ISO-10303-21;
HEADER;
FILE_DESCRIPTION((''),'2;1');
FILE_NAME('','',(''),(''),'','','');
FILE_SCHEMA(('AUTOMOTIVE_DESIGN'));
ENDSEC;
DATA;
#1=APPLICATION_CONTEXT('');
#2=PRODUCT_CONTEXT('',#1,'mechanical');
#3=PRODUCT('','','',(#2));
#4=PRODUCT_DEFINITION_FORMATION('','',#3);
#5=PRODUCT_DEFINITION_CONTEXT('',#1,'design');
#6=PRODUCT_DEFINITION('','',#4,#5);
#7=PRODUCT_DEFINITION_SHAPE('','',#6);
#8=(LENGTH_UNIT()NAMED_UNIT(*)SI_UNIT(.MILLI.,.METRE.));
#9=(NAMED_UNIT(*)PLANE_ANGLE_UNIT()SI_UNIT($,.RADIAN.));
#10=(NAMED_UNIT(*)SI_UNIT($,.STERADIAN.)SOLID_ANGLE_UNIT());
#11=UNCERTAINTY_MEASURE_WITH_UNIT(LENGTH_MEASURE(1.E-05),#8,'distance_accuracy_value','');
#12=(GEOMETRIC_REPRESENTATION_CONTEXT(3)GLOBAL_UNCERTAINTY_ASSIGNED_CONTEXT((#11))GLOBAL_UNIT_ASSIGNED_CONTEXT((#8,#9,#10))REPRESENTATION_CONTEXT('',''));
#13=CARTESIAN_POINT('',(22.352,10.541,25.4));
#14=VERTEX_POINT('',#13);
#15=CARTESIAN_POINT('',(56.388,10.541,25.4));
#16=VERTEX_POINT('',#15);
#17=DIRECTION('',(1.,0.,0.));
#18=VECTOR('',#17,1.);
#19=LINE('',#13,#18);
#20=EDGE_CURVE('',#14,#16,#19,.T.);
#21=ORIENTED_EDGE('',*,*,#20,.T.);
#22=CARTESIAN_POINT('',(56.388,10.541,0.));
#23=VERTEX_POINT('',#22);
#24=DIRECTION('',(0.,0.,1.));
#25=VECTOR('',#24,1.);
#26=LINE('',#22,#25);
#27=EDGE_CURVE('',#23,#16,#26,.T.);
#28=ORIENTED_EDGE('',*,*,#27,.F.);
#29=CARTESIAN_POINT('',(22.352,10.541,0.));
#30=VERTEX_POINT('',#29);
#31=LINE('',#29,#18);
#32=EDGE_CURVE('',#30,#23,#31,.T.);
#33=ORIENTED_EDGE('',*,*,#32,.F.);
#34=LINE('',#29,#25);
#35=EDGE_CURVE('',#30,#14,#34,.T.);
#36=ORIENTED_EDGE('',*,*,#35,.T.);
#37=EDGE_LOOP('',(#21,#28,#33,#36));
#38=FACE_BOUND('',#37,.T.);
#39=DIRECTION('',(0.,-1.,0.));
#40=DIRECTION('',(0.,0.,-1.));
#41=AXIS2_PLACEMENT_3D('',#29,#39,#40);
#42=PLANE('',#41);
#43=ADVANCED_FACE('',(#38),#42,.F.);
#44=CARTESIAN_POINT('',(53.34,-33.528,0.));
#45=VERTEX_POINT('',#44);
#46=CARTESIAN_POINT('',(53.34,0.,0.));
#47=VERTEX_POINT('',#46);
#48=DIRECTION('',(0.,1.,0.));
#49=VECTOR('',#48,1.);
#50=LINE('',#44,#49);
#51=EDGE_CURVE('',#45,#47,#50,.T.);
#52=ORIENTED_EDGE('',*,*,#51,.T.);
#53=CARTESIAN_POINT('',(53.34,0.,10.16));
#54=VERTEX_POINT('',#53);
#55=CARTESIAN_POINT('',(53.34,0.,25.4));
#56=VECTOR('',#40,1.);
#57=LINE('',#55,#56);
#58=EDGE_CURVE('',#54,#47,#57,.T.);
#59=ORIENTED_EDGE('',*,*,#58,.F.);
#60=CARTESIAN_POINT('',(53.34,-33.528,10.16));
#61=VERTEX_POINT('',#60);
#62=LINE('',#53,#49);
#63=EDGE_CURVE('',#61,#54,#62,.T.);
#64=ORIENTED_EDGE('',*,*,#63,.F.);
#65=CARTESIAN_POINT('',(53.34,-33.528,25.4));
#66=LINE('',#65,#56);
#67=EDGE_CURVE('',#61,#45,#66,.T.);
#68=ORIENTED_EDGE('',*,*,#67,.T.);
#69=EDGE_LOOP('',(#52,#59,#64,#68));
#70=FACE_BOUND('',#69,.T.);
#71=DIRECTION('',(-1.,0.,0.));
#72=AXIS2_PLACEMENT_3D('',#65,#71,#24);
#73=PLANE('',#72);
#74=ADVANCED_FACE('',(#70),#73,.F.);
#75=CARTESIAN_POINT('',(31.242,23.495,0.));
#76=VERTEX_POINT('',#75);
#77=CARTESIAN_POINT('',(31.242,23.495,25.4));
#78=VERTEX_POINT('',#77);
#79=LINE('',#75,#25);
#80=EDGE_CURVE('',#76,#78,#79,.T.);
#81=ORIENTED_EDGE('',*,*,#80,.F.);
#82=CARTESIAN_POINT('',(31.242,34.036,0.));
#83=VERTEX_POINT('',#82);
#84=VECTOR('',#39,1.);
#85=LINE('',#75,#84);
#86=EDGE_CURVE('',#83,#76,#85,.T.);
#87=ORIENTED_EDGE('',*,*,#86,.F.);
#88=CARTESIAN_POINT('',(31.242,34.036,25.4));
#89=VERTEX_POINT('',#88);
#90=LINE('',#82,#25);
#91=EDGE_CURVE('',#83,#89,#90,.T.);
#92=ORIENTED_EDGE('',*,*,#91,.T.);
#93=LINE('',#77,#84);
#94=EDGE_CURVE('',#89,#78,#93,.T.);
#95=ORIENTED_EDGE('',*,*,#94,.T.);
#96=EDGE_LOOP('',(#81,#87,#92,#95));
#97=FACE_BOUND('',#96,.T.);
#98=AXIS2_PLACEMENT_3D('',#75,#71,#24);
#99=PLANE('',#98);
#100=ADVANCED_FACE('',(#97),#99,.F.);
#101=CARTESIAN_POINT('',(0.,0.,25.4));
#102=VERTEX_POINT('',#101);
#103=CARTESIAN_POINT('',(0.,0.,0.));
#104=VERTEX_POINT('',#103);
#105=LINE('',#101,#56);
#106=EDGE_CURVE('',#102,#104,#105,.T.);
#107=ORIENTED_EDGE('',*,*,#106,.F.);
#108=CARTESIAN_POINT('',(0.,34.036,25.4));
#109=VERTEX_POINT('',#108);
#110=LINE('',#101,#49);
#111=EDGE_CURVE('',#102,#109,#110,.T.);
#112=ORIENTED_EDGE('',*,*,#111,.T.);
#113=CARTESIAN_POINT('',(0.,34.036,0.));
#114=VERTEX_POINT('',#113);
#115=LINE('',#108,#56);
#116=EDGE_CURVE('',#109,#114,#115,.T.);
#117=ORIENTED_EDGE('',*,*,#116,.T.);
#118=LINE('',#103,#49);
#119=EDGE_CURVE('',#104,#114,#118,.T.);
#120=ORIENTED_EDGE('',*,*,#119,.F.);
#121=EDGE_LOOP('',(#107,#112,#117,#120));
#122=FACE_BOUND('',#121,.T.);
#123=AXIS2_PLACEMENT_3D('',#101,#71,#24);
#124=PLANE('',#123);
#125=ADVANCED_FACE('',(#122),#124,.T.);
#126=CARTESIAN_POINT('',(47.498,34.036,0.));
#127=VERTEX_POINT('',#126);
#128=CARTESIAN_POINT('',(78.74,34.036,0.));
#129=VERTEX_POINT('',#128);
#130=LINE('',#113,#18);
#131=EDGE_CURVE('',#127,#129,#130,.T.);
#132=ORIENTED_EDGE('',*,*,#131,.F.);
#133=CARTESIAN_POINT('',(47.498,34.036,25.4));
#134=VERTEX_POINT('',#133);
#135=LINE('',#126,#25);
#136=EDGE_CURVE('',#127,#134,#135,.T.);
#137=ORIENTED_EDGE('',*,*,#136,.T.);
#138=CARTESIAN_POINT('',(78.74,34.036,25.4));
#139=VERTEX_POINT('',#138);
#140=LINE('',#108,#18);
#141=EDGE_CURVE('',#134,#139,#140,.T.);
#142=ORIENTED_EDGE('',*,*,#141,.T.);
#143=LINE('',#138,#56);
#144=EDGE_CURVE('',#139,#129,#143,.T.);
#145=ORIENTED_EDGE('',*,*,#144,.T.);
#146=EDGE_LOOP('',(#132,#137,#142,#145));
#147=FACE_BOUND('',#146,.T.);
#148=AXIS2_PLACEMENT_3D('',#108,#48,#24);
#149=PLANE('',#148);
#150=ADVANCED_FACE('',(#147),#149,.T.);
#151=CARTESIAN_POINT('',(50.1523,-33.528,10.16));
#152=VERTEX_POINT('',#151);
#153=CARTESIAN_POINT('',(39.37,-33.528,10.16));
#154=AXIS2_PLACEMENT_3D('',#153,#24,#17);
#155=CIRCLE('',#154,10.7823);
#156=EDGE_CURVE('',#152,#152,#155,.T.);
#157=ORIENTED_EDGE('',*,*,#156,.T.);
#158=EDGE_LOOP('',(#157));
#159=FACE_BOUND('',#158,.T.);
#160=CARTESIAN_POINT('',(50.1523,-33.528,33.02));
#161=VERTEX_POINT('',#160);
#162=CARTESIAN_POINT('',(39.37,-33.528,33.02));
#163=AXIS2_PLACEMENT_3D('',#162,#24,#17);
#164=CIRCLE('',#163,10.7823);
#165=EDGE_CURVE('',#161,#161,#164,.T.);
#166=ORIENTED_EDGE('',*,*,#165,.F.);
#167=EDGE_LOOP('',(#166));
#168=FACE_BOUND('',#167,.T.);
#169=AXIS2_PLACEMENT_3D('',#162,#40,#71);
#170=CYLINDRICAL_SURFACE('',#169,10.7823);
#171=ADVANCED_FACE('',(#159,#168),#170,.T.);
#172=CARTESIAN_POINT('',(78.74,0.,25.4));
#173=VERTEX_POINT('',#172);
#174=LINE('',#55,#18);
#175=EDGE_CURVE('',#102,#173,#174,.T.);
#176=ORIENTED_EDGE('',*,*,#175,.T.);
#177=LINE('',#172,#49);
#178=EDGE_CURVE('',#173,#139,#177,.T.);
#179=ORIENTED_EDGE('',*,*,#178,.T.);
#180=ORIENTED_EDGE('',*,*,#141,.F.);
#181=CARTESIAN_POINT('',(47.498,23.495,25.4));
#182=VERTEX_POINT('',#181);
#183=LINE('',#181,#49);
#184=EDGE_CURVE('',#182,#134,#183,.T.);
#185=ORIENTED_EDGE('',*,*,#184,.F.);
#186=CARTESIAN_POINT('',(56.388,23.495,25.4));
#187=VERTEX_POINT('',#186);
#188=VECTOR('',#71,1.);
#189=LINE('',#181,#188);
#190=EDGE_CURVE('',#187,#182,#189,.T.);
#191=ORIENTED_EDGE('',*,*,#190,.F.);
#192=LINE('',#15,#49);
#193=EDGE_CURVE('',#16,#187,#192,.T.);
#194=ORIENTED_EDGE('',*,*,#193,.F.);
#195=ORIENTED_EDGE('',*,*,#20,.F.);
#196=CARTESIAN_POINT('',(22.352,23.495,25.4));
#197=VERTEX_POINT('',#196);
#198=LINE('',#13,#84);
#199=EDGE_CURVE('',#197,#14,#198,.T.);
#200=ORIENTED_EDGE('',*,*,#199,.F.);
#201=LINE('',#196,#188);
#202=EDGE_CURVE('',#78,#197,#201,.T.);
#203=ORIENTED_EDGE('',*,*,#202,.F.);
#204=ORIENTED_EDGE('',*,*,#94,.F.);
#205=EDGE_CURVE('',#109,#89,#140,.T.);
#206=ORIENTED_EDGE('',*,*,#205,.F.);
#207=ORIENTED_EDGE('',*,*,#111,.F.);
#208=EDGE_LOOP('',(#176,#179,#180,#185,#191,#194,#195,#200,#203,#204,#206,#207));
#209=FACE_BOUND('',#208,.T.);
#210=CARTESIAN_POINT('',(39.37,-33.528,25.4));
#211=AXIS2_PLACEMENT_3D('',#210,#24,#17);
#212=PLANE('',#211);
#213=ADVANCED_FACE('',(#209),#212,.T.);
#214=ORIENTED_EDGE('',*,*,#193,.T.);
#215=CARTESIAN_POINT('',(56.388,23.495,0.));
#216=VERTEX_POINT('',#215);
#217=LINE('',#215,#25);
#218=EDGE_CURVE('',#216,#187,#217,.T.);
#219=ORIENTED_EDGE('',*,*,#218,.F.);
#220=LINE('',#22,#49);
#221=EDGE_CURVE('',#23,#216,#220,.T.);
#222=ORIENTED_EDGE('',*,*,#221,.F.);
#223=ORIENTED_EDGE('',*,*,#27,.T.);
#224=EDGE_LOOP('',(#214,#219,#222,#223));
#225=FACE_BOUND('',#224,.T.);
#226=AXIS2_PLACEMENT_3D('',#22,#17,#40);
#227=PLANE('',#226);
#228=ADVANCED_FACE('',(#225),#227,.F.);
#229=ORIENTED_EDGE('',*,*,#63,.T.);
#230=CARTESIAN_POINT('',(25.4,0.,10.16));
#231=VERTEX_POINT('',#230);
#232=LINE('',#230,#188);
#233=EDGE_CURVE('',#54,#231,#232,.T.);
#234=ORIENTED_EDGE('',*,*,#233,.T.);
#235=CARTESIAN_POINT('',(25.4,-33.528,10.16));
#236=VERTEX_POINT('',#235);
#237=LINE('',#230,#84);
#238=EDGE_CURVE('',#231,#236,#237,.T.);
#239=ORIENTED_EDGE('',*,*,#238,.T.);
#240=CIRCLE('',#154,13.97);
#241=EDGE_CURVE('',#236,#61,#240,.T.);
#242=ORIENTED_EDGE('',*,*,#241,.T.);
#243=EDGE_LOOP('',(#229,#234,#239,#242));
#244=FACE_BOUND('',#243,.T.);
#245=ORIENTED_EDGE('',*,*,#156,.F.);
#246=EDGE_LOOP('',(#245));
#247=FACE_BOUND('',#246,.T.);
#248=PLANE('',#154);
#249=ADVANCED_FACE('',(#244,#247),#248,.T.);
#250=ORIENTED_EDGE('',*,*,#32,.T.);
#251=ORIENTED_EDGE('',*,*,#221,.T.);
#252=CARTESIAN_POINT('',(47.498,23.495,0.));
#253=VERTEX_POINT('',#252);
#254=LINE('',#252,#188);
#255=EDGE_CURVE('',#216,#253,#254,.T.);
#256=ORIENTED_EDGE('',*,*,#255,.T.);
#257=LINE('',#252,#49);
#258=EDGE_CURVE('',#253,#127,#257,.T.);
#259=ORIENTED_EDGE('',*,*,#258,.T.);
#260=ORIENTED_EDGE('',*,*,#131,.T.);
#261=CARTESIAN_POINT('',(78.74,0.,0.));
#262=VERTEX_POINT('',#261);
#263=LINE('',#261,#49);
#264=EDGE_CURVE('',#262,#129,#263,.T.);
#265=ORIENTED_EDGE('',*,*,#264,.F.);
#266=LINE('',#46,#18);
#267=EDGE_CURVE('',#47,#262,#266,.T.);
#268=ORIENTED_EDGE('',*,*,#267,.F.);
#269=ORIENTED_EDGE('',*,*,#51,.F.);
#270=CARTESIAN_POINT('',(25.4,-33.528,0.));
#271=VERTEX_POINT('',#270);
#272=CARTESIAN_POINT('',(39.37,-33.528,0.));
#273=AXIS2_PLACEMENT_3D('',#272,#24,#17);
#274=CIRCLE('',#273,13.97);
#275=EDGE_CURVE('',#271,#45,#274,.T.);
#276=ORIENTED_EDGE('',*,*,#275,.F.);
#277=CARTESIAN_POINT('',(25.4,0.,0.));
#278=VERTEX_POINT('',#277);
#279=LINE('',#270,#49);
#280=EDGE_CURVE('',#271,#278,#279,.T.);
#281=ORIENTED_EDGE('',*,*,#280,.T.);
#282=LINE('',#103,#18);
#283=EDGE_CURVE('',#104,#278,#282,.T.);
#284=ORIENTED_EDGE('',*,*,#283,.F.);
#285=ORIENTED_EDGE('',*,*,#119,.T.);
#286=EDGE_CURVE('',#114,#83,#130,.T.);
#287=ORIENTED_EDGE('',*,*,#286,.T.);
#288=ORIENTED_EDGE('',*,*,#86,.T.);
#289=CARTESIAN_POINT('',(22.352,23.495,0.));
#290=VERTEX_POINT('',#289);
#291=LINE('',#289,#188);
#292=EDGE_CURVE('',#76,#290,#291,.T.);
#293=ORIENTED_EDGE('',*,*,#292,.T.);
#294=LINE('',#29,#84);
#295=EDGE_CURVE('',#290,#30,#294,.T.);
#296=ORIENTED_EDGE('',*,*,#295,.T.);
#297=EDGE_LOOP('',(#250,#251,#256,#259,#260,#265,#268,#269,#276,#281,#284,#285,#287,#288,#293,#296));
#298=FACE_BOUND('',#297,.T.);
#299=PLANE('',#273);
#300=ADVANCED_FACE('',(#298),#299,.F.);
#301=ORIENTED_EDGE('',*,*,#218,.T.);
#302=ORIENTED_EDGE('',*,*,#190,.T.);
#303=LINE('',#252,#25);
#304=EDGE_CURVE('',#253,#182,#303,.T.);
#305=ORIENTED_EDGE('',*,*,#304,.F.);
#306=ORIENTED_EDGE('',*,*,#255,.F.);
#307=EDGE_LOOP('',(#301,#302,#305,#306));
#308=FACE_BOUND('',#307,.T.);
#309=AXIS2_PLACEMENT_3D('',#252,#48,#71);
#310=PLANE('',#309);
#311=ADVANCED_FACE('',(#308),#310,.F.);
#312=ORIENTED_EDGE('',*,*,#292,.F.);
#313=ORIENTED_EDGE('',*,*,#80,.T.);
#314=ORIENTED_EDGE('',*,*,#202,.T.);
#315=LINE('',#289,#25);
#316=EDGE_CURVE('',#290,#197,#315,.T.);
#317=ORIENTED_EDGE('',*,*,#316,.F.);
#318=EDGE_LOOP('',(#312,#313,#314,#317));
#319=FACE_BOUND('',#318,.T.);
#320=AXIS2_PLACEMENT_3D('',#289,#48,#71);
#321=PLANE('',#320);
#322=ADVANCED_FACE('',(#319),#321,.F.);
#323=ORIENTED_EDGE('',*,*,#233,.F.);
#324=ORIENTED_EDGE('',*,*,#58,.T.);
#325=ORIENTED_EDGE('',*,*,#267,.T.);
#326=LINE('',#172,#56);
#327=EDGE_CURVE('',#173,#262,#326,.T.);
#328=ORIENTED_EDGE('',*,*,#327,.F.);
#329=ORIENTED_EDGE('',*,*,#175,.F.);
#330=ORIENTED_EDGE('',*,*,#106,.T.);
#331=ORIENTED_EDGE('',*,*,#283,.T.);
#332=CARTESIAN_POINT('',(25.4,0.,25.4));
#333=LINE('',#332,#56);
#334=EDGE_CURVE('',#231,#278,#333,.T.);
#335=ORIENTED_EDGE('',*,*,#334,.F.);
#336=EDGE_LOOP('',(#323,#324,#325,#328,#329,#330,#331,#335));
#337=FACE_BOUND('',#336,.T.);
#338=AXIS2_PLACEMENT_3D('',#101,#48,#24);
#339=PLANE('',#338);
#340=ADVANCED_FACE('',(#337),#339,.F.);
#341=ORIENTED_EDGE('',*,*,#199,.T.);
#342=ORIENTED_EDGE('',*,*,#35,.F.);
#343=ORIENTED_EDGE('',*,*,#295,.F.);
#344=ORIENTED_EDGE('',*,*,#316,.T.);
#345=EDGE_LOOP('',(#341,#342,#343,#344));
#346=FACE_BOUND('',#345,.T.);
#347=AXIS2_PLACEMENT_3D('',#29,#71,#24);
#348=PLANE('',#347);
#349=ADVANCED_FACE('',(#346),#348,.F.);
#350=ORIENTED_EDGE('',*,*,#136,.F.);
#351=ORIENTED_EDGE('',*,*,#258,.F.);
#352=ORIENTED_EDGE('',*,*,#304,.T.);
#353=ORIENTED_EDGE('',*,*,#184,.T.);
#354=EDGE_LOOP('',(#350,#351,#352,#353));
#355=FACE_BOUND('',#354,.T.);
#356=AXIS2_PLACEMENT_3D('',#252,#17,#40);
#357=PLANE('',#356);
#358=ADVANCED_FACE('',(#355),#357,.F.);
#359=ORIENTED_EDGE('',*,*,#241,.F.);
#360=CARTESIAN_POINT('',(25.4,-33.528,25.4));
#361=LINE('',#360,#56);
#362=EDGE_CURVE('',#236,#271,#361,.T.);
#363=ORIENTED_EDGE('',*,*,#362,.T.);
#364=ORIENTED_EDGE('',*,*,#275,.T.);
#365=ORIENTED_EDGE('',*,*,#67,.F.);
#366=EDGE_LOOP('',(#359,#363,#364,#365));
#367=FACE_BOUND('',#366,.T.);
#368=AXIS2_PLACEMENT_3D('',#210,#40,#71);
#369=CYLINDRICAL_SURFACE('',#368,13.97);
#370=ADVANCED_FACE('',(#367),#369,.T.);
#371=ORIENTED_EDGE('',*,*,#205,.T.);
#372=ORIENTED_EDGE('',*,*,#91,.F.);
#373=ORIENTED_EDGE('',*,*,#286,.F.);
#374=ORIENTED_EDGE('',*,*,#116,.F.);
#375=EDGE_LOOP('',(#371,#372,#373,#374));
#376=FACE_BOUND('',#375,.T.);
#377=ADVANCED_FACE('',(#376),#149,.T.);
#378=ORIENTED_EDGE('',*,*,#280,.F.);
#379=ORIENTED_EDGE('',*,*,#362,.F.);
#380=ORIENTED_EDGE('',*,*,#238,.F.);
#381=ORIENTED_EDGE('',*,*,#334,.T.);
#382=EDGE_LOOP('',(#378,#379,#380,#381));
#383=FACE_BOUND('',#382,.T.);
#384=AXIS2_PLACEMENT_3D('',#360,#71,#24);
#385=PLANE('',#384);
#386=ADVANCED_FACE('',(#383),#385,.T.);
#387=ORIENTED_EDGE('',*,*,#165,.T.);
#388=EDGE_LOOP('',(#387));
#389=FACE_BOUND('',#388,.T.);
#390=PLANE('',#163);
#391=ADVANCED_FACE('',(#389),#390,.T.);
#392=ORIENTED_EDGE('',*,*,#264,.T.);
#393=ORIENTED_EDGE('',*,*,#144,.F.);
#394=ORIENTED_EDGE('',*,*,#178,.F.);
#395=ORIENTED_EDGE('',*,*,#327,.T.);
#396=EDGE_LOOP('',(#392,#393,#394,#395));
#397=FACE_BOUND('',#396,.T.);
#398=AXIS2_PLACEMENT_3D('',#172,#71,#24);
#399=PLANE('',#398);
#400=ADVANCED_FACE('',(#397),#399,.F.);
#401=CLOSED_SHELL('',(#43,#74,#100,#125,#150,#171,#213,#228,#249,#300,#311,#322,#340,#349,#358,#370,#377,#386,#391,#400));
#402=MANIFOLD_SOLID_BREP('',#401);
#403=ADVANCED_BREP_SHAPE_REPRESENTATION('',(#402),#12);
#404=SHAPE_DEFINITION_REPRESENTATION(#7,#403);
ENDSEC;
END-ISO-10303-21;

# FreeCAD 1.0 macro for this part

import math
import FreeCAD as App
import Part
import Sketcher

V = App.Vector
Q = App.Units.Quantity

doc = App.newDocument("Part")
body = doc.addObject("PartDesign::Body", "Body")

sketch1 = body.newObject("Sketcher::SketchObject", "Sketch")
sketch1.AttachmentSupport = (doc.getObject("XY_Plane"), [""])
sketch1.MapMode = "FlatFace"
sketch1.addGeometry(Part.LineSegment(V(0, 0, 0), V(25, 0, 0)), False)
sketch1.addGeometry(Part.LineSegment(V(25, 0, 0), V(25, -34, 0)), False)
sketch1.addGeometry(Part.ArcOfCircle(Part.Circle(V(39, -34, 0), V(0, 0, 1), 14), math.radians(180), math.radians(360)), False)
sketch1.addGeometry(Part.LineSegment(V(53, -34, 0), V(53, 0, 0)), False)
sketch1.addGeometry(Part.LineSegment(V(53, 0, 0), V(79, 0, 0)), False)
sketch1.addGeometry(Part.LineSegment(V(79, 0, 0), V(79, 34, 0)), False)
sketch1.addGeometry(Part.LineSegment(V(79, 34, 0), V(0, 34, 0)), False)
sketch1.addGeometry(Part.LineSegment(V(0, 34, 0), V(0, 0, 0)), False)
sketch1.addConstraint(Sketcher.Constraint("Coincident", 0, 2, 1, 1))
sketch1.addConstraint(Sketcher.Constraint("Tangent", 1, 2, 2, 1))
sketch1.addConstraint(Sketcher.Constraint("Tangent", 2, 2, 3, 1))
sketch1.addConstraint(Sketcher.Constraint("Coincident", 3, 2, 4, 1))
sketch1.addConstraint(Sketcher.Constraint("Coincident", 4, 2, 5, 1))
sketch1.addConstraint(Sketcher.Constraint("Coincident", 5, 2, 6, 1))
sketch1.addConstraint(Sketcher.Constraint("Coincident", 6, 2, 7, 1))
sketch1.addConstraint(Sketcher.Constraint("Coincident", 7, 2, 0, 1))
sketch1.addConstraint(Sketcher.Constraint("Horizontal", 0))
sketch1.addConstraint(Sketcher.Constraint("Vertical", 1))
sketch1.addConstraint(Sketcher.Constraint("Vertical", 3))
sketch1.addConstraint(Sketcher.Constraint("Horizontal", 4))
sketch1.addConstraint(Sketcher.Constraint("Vertical", 5))
sketch1.addConstraint(Sketcher.Constraint("Horizontal", 6))
sketch1.addConstraint(Sketcher.Constraint("Vertical", 7))
sketch1.addConstraint(Sketcher.Constraint("Coincident", 7, 2, -1, 1))
sketch1.addConstraint(Sketcher.Constraint("PointOnObject", 3, 2, -1))
sketch1.addConstraint(Sketcher.Constraint("Equal", 0, 4))
sketch1.addConstraint(Sketcher.Constraint("DistanceX", 0, 1, 0, 2, Q("1 in")))
sketch1.addConstraint(Sketcher.Constraint("Radius", 2, Q("0.55 in")))
sketch1.addConstraint(Sketcher.Constraint("DistanceY", 1, 2, 1, 1, Q("1.32 in")))
sketch1.addConstraint(Sketcher.Constraint("DistanceY", 5, 1, 5, 2, Q("1.34 in")))
pad1 = body.newObject("PartDesign::Pad", "Pad")
pad1.Profile = sketch1
pad1.Length = Q("1 in")

sketch2 = body.newObject("Sketcher::SketchObject", "Sketch001")
sketch2.AttachmentSupport = (doc.getObject("XY_Plane"), [""])
sketch2.MapMode = "FlatFace"
sketch2.AttachmentOffset = App.Placement(V(0, 0, 1 * 25.4), App.Rotation())
sketch2.addGeometry(Part.LineSegment(V(56, 23, 0), V(47, 23, 0)), False)
sketch2.addGeometry(Part.LineSegment(V(47, 23, 0), V(47, 34, 0)), False)
sketch2.addGeometry(Part.LineSegment(V(47, 34, 0), V(31, 34, 0)), False)
sketch2.addGeometry(Part.LineSegment(V(31, 34, 0), V(31, 23, 0)), False)
sketch2.addGeometry(Part.LineSegment(V(31, 23, 0), V(22, 23, 0)), False)
sketch2.addGeometry(Part.LineSegment(V(22, 23, 0), V(22, 11, 0)), False)
sketch2.addGeometry(Part.LineSegment(V(22, 11, 0), V(56, 11, 0)), False)
sketch2.addGeometry(Part.LineSegment(V(56, 11, 0), V(56, 23, 0)), False)
sketch2.addConstraint(Sketcher.Constraint("Coincident", 0, 2, 1, 1))
sketch2.addConstraint(Sketcher.Constraint("Coincident", 1, 2, 2, 1))
sketch2.addConstraint(Sketcher.Constraint("Coincident", 2, 2, 3, 1))
sketch2.addConstraint(Sketcher.Constraint("Coincident", 3, 2, 4, 1))
sketch2.addConstraint(Sketcher.Constraint("Coincident", 4, 2, 5, 1))
sketch2.addConstraint(Sketcher.Constraint("Coincident", 5, 2, 6, 1))
sketch2.addConstraint(Sketcher.Constraint("Coincident", 6, 2, 7, 1))
sketch2.addConstraint(Sketcher.Constraint("Coincident", 7, 2, 0, 1))
sketch2.addConstraint(Sketcher.Constraint("Horizontal", 0))
sketch2.addConstraint(Sketcher.Constraint("Vertical", 1))
sketch2.addConstraint(Sketcher.Constraint("Horizontal", 2))
sketch2.addConstraint(Sketcher.Constraint("Vertical", 3))
sketch2.addConstraint(Sketcher.Constraint("Horizontal", 4))
sketch2.addConstraint(Sketcher.Constraint("Vertical", 5))
sketch2.addConstraint(Sketcher.Constraint("Horizontal", 6))
sketch2.addConstraint(Sketcher.Constraint("Vertical", 7))
sketch2.addConstraint(Sketcher.Constraint("Horizontal", 0, 2, 3, 2))
sketch2.addConstraint(Sketcher.Constraint("Equal", 0, 4))
sketch2.addConstraint(Sketcher.Constraint("DistanceX", 0, 2, 0, 1, Q("0.35 in")))
sketch2.addConstraint(Sketcher.Constraint("DistanceX", 2, 2, 2, 1, Q("0.64 in")))
sketch2.addConstraint(Sketcher.Constraint("DistanceY", 5, 2, 5, 1, Q("0.51 in")))
sketch2.addConstraint(Sketcher.Constraint("DistanceY", 1, 1, 1, 2, Q("0.415 in")))
sketch2.addConstraint(Sketcher.Constraint("DistanceX", -1, 1, 0, 2, Q("1.87 in")))
sketch2.addConstraint(Sketcher.Constraint("DistanceY", -1, 1, 1, 2, Q("1.34 in")))
pocket1 = body.newObject("PartDesign::Pocket", "Pocket")
pocket1.Profile = sketch2
pocket1.Type = "ThroughAll"

sketch3 = body.newObject("Sketcher::SketchObject", "Sketch002")
sketch3.AttachmentSupport = (doc.getObject("XY_Plane"), [""])
sketch3.MapMode = "FlatFace"
sketch3.AttachmentOffset = App.Placement(V(0, 0, 0.4 * 25.4), App.Rotation())
sketch3.addGeometry(Part.LineSegment(V(53, 0, 0), V(25, 0, 0)), False)
sketch3.addGeometry(Part.LineSegment(V(25, 0, 0), V(25, -34, 0)), False)
sketch3.addGeometry(Part.ArcOfCircle(Part.Circle(V(39, -34, 0), V(0, 0, 1), 14), math.radians(180), math.radians(360)), False)
sketch3.addGeometry(Part.LineSegment(V(53, -34, 0), V(53, 0, 0)), False)
sketch3.addConstraint(Sketcher.Constraint("Coincident", 0, 2, 1, 1))
sketch3.addConstraint(Sketcher.Constraint("Tangent", 1, 2, 2, 1))
sketch3.addConstraint(Sketcher.Constraint("Tangent", 2, 2, 3, 1))
sketch3.addConstraint(Sketcher.Constraint("Coincident", 3, 2, 0, 1))
sketch3.addConstraint(Sketcher.Constraint("Horizontal", 0))
sketch3.addConstraint(Sketcher.Constraint("Vertical", 1))
sketch3.addConstraint(Sketcher.Constraint("Vertical", 3))
sketch3.addConstraint(Sketcher.Constraint("PointOnObject", 0, 2, -1))
sketch3.addConstraint(Sketcher.Constraint("Radius", 2, Q("0.55 in")))
sketch3.addConstraint(Sketcher.Constraint("DistanceX", -1, 1, 0, 2, Q("1 in")))
sketch3.addConstraint(Sketcher.Constraint("DistanceY", 1, 2, 1, 1, Q("1.32 in")))
pocket2 = body.newObject("PartDesign::Pocket", "Pocket001")
pocket2.Profile = sketch3
pocket2.Length = Q("0.6 in")
pocket2.Reversed = True

sketch4 = body.newObject("Sketcher::SketchObject", "Sketch003")
sketch4.AttachmentSupport = (doc.getObject("XY_Plane"), [""])
sketch4.MapMode = "FlatFace"
sketch4.AttachmentOffset = App.Placement(V(0, 0, 0.4 * 25.4), App.Rotation())
sketch4.addGeometry(Part.Circle(V(39, -34, 0), V(0, 0, 1), 11), False)
sketch4.addConstraint(Sketcher.Constraint("Diameter", 0, Q("0.849 in")))
sketch4.addConstraint(Sketcher.Constraint("DistanceX", -1, 1, 0, 3, Q("1.55 in")))
sketch4.addConstraint(Sketcher.Constraint("DistanceY", 0, 3, -1, 1, Q("1.32 in")))
pad2 = body.newObject("PartDesign::Pad", "Pad001")
pad2.Profile = sketch4
pad2.Length = Q("0.9 in")

doc.recompute()
